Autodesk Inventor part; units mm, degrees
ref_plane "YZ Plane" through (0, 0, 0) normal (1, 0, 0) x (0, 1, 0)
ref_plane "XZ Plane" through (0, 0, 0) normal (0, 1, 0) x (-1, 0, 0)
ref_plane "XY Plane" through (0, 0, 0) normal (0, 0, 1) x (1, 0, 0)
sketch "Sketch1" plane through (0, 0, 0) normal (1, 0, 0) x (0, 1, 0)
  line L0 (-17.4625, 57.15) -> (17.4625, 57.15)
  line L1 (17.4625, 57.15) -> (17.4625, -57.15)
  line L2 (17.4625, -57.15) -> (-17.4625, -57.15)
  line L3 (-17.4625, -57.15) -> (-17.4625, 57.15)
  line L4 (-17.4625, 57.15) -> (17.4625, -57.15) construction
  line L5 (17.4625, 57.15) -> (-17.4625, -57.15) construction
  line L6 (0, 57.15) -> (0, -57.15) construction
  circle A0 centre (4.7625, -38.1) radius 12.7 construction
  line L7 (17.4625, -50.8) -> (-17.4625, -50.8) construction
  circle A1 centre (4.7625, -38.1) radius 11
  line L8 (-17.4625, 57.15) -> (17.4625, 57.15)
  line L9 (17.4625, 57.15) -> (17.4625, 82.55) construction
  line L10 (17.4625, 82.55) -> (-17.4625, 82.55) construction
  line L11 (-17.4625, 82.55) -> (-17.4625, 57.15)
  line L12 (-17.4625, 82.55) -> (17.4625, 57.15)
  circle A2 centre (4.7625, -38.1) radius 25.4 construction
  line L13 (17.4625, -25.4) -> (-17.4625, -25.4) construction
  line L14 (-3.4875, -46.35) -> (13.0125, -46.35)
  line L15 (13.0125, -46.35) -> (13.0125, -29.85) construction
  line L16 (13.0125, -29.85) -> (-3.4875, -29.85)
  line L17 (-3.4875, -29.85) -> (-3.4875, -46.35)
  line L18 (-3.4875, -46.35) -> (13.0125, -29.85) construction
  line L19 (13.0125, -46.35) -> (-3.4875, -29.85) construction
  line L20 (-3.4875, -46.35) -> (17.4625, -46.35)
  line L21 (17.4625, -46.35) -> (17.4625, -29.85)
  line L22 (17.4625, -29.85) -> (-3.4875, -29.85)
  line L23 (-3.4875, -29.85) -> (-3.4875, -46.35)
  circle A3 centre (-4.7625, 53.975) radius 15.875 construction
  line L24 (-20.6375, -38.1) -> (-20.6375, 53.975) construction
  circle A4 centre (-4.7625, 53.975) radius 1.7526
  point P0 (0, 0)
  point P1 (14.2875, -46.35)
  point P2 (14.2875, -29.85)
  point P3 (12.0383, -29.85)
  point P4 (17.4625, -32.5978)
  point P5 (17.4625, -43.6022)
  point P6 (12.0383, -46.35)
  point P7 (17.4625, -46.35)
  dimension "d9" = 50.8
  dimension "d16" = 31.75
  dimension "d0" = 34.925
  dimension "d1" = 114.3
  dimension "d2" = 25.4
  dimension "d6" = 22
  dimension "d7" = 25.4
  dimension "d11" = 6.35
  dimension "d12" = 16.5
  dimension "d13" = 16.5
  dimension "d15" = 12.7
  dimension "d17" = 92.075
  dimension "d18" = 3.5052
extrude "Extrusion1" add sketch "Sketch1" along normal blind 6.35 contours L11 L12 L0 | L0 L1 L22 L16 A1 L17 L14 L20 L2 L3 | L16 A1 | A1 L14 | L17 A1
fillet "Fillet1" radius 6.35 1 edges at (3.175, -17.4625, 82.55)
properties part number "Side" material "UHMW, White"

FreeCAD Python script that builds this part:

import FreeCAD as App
import Part
import Sketcher

V = App.Vector
Q = App.Units.Quantity


def edges_at(feature, points):
    """Names of the edges that pass closest to the given points."""
    edges = feature.Shape.Edges
    near = lambda p: min(range(len(edges)), key=lambda i: edges[i].distToShape(Part.Vertex(*p))[0])
    return sorted({f"Edge{near(p) + 1}" for p in points})


def add_polygon(sketch, points):
    """Adds a closed chain of lines whose ends are joined by coincident constraints."""
    first, n = sketch.GeometryCount, len(points)
    for a, b in zip(points, points[1:] + points[:1]):
        sketch.addGeometry(Part.LineSegment(App.Vector(*a, 0), App.Vector(*b, 0)), False)
    for i in range(n):
        sketch.addConstraint(Sketcher.Constraint("Coincident", first + i, 2, first + (i + 1) % n, 1))

doc = App.newDocument("Part")
body = doc.addObject("PartDesign::Body", "Body")

sketch1 = body.newObject("Sketcher::SketchObject", "Sketch")
sketch1.AttachmentSupport = (doc.getObject("YZ_Plane"), [""])
sketch1.MapMode = "FlatFace"
add_polygon(sketch1, [(-17.5, 82.5), (-17.5, -57.1), (17.5, -57.1), (17.5, -46.4), (-3.5, -46.4), (-3.5, -29.9), (17.5, -29.9), (17.5, 57.1)])
sketch1.addGeometry(Part.Circle(V(-4.8, 54, 0), V(0, 0, 1), 1.8), False)
sketch1.addConstraint([
    Sketcher.Constraint("Vertical", 0),
    Sketcher.Constraint("Horizontal", 1),
    Sketcher.Constraint("Vertical", 2),
    Sketcher.Constraint("Horizontal", 3),
    Sketcher.Constraint("Vertical", 4),
    Sketcher.Constraint("Horizontal", 5),
    Sketcher.Constraint("Vertical", 6),
    Sketcher.Constraint("Symmetric", 0, 2, 6, 2, -1, 1),
    Sketcher.Constraint("Vertical", 2, 2, 5, 2),
    Sketcher.Constraint("Diameter", 8, Q("0.138 in")),
    Sketcher.Constraint("DistanceY", 6, 2, 7, 2, Q("1 in")),
    Sketcher.Constraint("DistanceX", 0, 2, 8, 3, Q("0.5 in")),
    Sketcher.Constraint("DistanceX", 1, 1, 1, 2, Q("1.375 in")),
    Sketcher.Constraint("DistanceY", 0, 2, 0, 1, Q("5.5 in")),
    Sketcher.Constraint("DistanceY", 4, 1, 4, 2, Q("0.6496 in")),
    Sketcher.Constraint("DistanceX", 3, 2, 3, 1, Q("0.8248 in")),
    Sketcher.Constraint("DistanceY", 2, 1, 2, 2, Q("0.4252 in")),
    Sketcher.Constraint("DistanceY", -1, 1, 8, 3, Q("2.125 in")),
])
pad1 = body.newObject("PartDesign::Pad", "Pad")
pad1.Profile = sketch1
pad1.Length = Q("0.25 in")
doc.recompute()

fillet = body.newObject("PartDesign::Fillet", "Fillet")
fillet.Base = (pad1, edges_at(pad1, [(3.175, -17.462, 82.55)]))
fillet.Radius = Q("0.25 in")

doc.recompute()
